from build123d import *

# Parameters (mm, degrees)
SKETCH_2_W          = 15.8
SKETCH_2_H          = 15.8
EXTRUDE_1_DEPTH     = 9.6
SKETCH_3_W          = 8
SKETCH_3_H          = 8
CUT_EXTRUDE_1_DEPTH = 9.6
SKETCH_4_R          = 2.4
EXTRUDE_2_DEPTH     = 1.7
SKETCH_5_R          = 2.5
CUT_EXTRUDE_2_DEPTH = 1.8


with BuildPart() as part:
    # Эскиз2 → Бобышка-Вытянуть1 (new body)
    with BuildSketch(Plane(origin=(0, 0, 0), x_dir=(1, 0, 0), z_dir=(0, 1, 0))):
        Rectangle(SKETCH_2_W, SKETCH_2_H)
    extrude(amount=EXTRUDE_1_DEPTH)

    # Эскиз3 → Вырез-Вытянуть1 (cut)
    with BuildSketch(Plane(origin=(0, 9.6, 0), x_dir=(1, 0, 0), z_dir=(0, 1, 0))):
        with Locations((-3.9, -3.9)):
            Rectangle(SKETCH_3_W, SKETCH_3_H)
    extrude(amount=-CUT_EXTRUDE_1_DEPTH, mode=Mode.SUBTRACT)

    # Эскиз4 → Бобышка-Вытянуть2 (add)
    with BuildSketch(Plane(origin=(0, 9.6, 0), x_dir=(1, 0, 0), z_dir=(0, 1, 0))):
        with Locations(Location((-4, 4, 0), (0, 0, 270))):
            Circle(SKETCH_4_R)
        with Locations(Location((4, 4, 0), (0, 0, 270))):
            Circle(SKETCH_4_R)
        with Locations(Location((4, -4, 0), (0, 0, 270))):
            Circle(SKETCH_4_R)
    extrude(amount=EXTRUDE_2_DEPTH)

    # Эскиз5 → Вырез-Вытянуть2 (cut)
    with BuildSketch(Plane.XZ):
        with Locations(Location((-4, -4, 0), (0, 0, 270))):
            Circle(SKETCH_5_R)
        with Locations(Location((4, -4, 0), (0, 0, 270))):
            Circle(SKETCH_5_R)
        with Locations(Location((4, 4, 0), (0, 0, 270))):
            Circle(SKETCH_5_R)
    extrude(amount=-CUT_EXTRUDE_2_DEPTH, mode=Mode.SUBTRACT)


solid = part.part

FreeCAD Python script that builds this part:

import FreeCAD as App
import Part
import Sketcher
from FreeCAD import Vector
Q = App.Units.Quantity


def add_polygon(sketch, points):
    """Adds a closed chain of lines whose ends are joined by coincident constraints."""
    first, n = sketch.GeometryCount, len(points)
    for a, b in zip(points, points[1:] + points[:1]):
        sketch.addGeometry(Part.LineSegment(App.Vector(*a, 0), App.Vector(*b, 0)), False)
    for i in range(n):
        sketch.addConstraint(Sketcher.Constraint("Coincident", first + i, 2, first + (i + 1) % n, 1))

doc = App.newDocument("Part")
body = doc.addObject("PartDesign::Body", "Body")

sketch1 = body.newObject("Sketcher::SketchObject", "Sketch")
sketch1.AttachmentSupport = (doc.getObject("XZ_Plane"), [""])
sketch1.MapMode = "FlatFace"
add_polygon(sketch1, [(-7.9, -7.9), (-7.9, 7.9), (7.9, 7.9), (7.9, -7.9)])
sketch1.addConstraint([
    Sketcher.Constraint("Vertical", 0),
    Sketcher.Constraint("Horizontal", 1),
    Sketcher.Constraint("Vertical", 2),
    Sketcher.Constraint("Horizontal", 3),
    Sketcher.Constraint("Symmetric", 0, 2, 2, 2, -1, 1),
    Sketcher.Constraint("Equal", 3, 0),
    Sketcher.Constraint("DistanceX", 1, 1, 1, 2, Q("15.8 mm")),
])
pad1 = body.newObject("PartDesign::Pad", "Pad")
pad1.Profile = sketch1
pad1.Length = 9.6
pad1.Reversed = True

sketch2 = body.newObject("Sketcher::SketchObject", "Sketch001")
sketch2.AttachmentSupport = (doc.getObject("XZ_Plane"), [""])
sketch2.MapMode = "FlatFace"
sketch2.AttachmentOffset = App.Placement(Vector(0, 0, -9.6), App.Rotation())
add_polygon(sketch2, [(-7.9, -0.1), (-7.9, 7.9), (0.1, 7.9), (0.1, -0.1)])
sketch2.addConstraint([
    Sketcher.Constraint("Vertical", 0),
    Sketcher.Constraint("Horizontal", 1),
    Sketcher.Constraint("Vertical", 2),
    Sketcher.Constraint("Horizontal", 3),
    Sketcher.Constraint("Equal", 3, 0),
    Sketcher.Constraint("DistanceX", 1, 1, 1, 2, Q("8 mm")),
    Sketcher.Constraint("DistanceX", 0, 2, -1, 1, Q("7.9 mm")),
    Sketcher.Constraint("DistanceY", -1, 1, 0, 2, Q("7.9 mm")),
])
pocket1 = body.newObject("PartDesign::Pocket", "Pocket")
pocket1.Profile = sketch2
pocket1.Length = 9.6
pocket1.Reversed = True

sketch3 = body.newObject("Sketcher::SketchObject", "Sketch002")
sketch3.AttachmentSupport = (doc.getObject("XZ_Plane"), [""])
sketch3.MapMode = "FlatFace"
sketch3.AttachmentOffset = App.Placement(Vector(0, 0, -9.6), App.Rotation())
sketch3.addGeometry([
    Part.Circle(Vector(-4, -4, 0), Vector(0, 0, 1), 2.4),
    Part.Circle(Vector(4, -4, 0), Vector(0, 0, 1), 2.4),
    Part.Circle(Vector(4, 4, 0), Vector(0, 0, 1), 2.4),
], False)
sketch3.addConstraint([
    Sketcher.Constraint("Equal", 0, 1),
    Sketcher.Constraint("Equal", 1, 2),
    Sketcher.Constraint("Symmetric", 0, 3, 2, 3, -1, 1),
    Sketcher.Constraint("Symmetric", 0, 3, 1, 3, -2),
    Sketcher.Constraint("Diameter", 0, Q("4.8 mm")),
    Sketcher.Constraint("DistanceX", 0, 3, -1, 1, Q("4 mm")),
    Sketcher.Constraint("DistanceY", 0, 3, -1, 1, Q("4 mm")),
])
pad2 = body.newObject("PartDesign::Pad", "Pad001")
pad2.Profile = sketch3
pad2.Length = 1.7
pad2.Reversed = True

sketch4 = body.newObject("Sketcher::SketchObject", "Sketch003")
sketch4.AttachmentSupport = (doc.getObject("XZ_Plane"), [""])
sketch4.MapMode = "FlatFace"
sketch4.addGeometry([
    Part.Circle(Vector(-4, -4, 0), Vector(0, 0, 1), 2.5),
    Part.Circle(Vector(4, -4, 0), Vector(0, 0, 1), 2.5),
    Part.Circle(Vector(4, 4, 0), Vector(0, 0, 1), 2.5),
], False)
sketch4.addConstraint([
    Sketcher.Constraint("Equal", 0, 1),
    Sketcher.Constraint("Equal", 1, 2),
    Sketcher.Constraint("Symmetric", 0, 3, 2, 3, -1, 1),
    Sketcher.Constraint("Symmetric", 0, 3, 1, 3, -2),
    Sketcher.Constraint("Diameter", 0, Q("5 mm")),
    Sketcher.Constraint("DistanceX", 0, 3, -1, 1, Q("4 mm")),
    Sketcher.Constraint("DistanceY", 0, 3, -1, 1, Q("4 mm")),
])
pocket2 = body.newObject("PartDesign::Pocket", "Pocket001")
pocket2.Profile = sketch4
pocket2.Length = 1.8

doc.recompute()
